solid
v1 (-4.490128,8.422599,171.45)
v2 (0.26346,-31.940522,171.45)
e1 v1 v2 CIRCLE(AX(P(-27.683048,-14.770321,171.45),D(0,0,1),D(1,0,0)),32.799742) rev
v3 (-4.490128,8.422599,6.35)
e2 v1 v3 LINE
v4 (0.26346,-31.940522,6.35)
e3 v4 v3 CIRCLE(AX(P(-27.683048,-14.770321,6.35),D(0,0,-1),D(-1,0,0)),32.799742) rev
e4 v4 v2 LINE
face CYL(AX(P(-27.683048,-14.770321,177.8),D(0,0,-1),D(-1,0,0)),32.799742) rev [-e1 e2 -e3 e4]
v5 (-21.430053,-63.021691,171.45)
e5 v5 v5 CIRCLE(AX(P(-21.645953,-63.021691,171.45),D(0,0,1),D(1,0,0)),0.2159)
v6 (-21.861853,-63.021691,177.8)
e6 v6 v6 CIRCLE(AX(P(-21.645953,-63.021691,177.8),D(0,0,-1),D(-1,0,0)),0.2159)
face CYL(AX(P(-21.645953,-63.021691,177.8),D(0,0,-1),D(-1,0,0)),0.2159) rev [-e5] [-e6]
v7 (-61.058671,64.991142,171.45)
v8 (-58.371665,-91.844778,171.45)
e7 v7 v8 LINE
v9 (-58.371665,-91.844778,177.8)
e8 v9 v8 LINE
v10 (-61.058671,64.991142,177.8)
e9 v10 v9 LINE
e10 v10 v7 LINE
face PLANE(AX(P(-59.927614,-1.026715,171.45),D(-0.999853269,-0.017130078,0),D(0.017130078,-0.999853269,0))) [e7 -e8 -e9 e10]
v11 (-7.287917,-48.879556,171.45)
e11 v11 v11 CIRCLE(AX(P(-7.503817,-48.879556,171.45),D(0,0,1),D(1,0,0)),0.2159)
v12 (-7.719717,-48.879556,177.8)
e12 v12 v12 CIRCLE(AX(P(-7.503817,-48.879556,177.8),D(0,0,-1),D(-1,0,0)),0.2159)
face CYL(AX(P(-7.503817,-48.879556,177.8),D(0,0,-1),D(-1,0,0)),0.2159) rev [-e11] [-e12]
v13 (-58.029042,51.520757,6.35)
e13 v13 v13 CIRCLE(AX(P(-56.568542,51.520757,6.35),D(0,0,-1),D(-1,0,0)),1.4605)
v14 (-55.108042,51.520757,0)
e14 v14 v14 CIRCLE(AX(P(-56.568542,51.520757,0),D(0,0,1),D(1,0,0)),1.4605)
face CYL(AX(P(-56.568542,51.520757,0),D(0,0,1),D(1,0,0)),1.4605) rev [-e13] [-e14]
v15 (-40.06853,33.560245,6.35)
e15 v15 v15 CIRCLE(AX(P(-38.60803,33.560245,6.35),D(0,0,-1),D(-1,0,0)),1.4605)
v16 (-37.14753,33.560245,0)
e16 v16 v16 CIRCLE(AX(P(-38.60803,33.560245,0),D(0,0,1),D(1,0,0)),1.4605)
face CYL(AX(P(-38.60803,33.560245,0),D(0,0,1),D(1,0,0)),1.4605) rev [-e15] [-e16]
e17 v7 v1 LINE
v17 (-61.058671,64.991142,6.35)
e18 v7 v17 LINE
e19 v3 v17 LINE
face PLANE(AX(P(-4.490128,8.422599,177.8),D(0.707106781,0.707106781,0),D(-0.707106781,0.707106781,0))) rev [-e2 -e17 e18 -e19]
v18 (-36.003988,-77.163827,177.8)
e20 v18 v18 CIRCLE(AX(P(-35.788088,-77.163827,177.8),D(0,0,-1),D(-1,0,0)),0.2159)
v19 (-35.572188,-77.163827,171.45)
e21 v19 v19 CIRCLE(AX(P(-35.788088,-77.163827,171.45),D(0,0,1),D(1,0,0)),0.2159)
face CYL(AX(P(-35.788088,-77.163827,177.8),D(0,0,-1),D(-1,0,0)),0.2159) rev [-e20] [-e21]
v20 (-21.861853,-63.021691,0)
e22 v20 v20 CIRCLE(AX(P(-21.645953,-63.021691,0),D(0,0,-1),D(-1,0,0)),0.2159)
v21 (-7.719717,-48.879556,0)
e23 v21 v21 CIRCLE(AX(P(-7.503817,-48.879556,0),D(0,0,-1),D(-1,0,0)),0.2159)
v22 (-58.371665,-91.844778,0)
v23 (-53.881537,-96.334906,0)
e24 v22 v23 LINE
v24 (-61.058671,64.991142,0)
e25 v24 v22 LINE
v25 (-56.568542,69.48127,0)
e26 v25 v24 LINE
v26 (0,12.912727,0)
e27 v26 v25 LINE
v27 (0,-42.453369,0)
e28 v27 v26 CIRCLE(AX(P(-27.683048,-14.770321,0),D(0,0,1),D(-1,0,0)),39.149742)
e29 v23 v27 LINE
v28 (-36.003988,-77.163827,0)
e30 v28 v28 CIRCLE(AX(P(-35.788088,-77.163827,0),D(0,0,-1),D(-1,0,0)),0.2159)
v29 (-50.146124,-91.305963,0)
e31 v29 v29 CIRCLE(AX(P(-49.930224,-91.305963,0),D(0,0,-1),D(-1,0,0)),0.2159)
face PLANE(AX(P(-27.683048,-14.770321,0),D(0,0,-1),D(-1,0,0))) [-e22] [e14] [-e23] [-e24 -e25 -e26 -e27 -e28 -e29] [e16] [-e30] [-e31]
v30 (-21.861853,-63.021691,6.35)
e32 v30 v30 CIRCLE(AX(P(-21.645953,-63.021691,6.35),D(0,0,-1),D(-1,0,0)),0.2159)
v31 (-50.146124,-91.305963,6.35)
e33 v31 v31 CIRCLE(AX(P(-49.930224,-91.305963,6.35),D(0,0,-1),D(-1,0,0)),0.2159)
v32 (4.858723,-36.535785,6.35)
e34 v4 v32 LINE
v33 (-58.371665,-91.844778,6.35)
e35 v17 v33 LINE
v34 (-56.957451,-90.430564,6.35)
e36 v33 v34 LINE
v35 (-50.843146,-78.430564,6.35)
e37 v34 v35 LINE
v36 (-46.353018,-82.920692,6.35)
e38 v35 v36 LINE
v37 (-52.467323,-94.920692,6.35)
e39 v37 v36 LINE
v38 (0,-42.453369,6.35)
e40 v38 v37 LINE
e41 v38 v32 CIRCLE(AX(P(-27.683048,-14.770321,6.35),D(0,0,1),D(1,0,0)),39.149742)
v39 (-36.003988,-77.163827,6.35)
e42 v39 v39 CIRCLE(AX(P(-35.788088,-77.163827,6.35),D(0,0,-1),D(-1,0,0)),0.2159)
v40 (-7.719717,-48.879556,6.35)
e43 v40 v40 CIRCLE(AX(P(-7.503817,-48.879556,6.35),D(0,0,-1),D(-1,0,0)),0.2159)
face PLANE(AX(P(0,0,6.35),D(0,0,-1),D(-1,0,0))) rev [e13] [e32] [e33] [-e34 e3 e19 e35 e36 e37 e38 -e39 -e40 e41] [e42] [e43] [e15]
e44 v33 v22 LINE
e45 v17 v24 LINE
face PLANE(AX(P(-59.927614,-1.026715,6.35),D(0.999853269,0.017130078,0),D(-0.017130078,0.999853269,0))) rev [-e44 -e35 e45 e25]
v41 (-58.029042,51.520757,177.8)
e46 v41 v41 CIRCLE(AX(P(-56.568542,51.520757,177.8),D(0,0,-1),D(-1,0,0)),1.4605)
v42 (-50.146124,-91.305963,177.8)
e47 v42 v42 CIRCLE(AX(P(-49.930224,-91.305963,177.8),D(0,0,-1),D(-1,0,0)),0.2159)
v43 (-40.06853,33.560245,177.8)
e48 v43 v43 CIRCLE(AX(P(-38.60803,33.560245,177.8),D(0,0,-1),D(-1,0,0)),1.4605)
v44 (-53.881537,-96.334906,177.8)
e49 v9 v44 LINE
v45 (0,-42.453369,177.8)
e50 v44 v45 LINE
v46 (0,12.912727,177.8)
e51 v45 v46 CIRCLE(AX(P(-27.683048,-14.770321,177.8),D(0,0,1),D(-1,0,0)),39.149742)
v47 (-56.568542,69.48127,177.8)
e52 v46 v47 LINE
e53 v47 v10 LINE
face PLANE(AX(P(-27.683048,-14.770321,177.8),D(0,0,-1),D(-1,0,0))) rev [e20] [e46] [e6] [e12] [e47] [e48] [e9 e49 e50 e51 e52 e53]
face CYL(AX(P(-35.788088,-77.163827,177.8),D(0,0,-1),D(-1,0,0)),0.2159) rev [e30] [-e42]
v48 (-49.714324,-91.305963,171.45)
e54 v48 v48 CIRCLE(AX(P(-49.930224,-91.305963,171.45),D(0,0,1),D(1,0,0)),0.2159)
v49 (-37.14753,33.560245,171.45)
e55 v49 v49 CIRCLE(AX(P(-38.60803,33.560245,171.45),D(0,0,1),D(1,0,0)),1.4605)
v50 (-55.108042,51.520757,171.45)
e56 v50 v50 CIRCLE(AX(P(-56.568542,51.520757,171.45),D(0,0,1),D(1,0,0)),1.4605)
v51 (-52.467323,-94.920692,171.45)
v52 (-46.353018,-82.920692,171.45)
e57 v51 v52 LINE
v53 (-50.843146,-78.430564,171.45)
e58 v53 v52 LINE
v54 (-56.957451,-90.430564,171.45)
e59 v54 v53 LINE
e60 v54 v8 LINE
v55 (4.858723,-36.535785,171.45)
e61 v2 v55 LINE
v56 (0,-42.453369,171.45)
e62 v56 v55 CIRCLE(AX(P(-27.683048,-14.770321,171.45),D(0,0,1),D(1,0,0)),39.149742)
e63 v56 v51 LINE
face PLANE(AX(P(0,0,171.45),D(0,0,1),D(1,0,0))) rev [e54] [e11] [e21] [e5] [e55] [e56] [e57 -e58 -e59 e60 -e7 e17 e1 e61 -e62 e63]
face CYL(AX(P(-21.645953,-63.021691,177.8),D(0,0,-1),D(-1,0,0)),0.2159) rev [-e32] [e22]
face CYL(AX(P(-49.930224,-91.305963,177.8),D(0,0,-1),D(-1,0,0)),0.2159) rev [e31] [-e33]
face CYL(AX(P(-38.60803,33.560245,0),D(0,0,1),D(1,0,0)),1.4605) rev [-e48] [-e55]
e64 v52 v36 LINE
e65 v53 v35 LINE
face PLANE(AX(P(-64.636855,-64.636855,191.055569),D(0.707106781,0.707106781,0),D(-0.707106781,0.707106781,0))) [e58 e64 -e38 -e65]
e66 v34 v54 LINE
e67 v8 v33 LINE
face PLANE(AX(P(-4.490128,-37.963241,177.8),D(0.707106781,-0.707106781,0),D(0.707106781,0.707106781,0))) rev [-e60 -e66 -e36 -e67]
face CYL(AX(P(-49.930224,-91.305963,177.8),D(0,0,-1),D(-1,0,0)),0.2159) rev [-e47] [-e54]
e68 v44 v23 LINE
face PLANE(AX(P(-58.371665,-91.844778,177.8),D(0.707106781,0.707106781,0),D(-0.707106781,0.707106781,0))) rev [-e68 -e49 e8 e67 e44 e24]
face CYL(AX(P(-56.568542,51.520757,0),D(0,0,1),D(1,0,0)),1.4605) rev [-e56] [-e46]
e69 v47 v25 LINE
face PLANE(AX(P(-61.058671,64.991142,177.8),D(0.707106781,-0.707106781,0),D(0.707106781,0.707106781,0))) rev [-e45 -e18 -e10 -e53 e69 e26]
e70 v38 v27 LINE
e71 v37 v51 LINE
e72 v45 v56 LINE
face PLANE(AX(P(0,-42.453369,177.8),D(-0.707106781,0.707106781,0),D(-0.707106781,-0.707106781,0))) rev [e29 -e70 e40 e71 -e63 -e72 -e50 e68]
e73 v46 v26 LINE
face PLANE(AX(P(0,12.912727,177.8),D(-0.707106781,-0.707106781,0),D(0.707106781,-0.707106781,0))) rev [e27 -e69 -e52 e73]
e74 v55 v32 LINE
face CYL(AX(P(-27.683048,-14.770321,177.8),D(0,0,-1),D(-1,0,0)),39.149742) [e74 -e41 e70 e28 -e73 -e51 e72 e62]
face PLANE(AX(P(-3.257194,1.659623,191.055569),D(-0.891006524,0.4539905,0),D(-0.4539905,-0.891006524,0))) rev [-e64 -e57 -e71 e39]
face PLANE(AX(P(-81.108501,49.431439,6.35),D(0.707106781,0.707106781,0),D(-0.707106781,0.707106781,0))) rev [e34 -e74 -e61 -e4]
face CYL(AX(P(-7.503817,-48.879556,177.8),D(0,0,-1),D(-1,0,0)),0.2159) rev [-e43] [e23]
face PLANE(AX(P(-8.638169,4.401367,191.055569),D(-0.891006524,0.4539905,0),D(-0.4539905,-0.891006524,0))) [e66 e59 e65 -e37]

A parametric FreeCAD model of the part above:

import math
import FreeCAD as App
import Part
import Sketcher
from FreeCAD import Vector
Q = App.Units.Quantity

doc = App.newDocument("Part")
body = doc.addObject("PartDesign::Body", "Body")

# Sketch on XY plane
sketch1 = doc.addObject("Sketcher::SketchObject", "Sketch")
body.addObject(sketch1)
sketch1.AttachmentSupport = (doc.XY_Plane, [""])
sketch1.MapMode = "FlatFace"
sketch1.addGeometry([
    Part.LineSegment(Vector(0, 13, 0), Vector(-57, 69, 0)),  # 0
    Part.LineSegment(Vector(-57, 69, 0), Vector(-61, 65, 0)),  # 1
    Part.LineSegment(Vector(-61, 65, 0), Vector(-4, 8, 0)),  # 2
    Part.ArcOfCircle(Part.Circle(Vector(-28, -15, 0), Vector(0, 0, 1), 33), math.radians(-45), math.radians(45)),  # 3
    Part.LineSegment(Vector(-4, -38, 0), Vector(-58, -92, 0)),  # 4
    Part.LineSegment(Vector(-58, -92, 0), Vector(-54, -96, 0)),  # 5
    Part.LineSegment(Vector(-54, -96, 0), Vector(0, -42, 0)),  # 6
    Part.ArcOfCircle(Part.Circle(Vector(-28, -15, 0), Vector(0, 0, 1), 39), math.radians(-45), math.radians(45)),  # 7
], False)
sketch1.addConstraint([
    Sketcher.Constraint("Coincident", 0, 2, 1, 1),
    Sketcher.Constraint("Coincident", 1, 2, 2, 1),
    Sketcher.Constraint("Tangent", 2, 2, 3, 2),
    Sketcher.Constraint("Tangent", 3, 1, 4, 1),
    Sketcher.Constraint("Coincident", 4, 2, 5, 1),
    Sketcher.Constraint("Coincident", 5, 2, 6, 1),
    Sketcher.Constraint("Tangent", 6, 2, 7, 1),
    Sketcher.Constraint("Tangent", 7, 2, 0, 1),
    Sketcher.Constraint("Coincident", 7, 3, 3, 3),
    Sketcher.Constraint("PointOnObject", 6, 2, -2),
    Sketcher.Constraint("PointOnObject", 7, 2, -2),
    Sketcher.Constraint("Perpendicular", 0, 1),
    Sketcher.Constraint("Perpendicular", 1, 2),
    Sketcher.Constraint("Perpendicular", 2, 4),
    Sketcher.Constraint("Perpendicular", 4, 5),
    Sketcher.Constraint("Perpendicular", 5, 6),
    Sketcher.Constraint("Distance", 4, Q("3 in")),
    Sketcher.Constraint("Distance", 1, Q("0.25 in")),
    Sketcher.Constraint("Radius", 3, Q("32.799742 mm")),
    Sketcher.Constraint("Distance", 0, Q("80 mm")),
    Sketcher.Constraint("DistanceY", -1, 1, 2, 2, Q("8.422599 mm")),
])
pad1 = doc.addObject("PartDesign::Pad", "Pad")
body.addObject(pad1)
pad1.Profile = sketch1
pad1.Length = Q("7 in")

# Sketch on XY plane
sketch2 = doc.addObject("Sketcher::SketchObject", "Sketch001")
body.addObject(sketch2)
sketch2.AttachmentSupport = (doc.XY_Plane, [""])
sketch2.MapMode = "FlatFace"
sketch2.addGeometry([
    Part.LineSegment(Vector(-58, -92, 0), Vector(-61, 65, 0)),
    Part.LineSegment(Vector(-61, 65, 0), Vector(-4, 8, 0)),
    Part.ArcOfCircle(Part.Circle(Vector(-28, -15, 0), Vector(0, 0, 1), 33), math.radians(-45), math.radians(45)),
    Part.LineSegment(Vector(-4, -38, 0), Vector(-58, -92, 0)),
], False)
sketch2.addConstraint([
    Sketcher.Constraint("Coincident", 0, 2, 1, 1),
    Sketcher.Constraint("Tangent", 1, 2, 2, 2),
    Sketcher.Constraint("Tangent", 2, 1, 3, 1),
    Sketcher.Constraint("Coincident", 3, 2, 0, 1),
    Sketcher.Constraint("Perpendicular", 1, 3),
    Sketcher.Constraint("Vertical", 1, 2, 2, 1),
    Sketcher.Constraint("Distance", 3, Q("3 in")),
    Sketcher.Constraint("Radius", 2, Q("32.799742 mm")),
    Sketcher.Constraint("Distance", 1, Q("80 mm")),
    Sketcher.Constraint("DistanceY", -1, 1, 1, 2, Q("8.422599 mm")),
    Sketcher.Constraint("DistanceX", 2, 3, -1, 1, Q("27.683048 mm")),
])
pad2 = doc.addObject("PartDesign::Pad", "Pad001")
body.addObject(pad2)
pad2.Profile = sketch2
pad2.Length = Q("0.25 in")

# Sketch on XY plane
sketch3 = doc.addObject("Sketcher::SketchObject", "Sketch002")
body.addObject(sketch3)
sketch3.AttachmentSupport = (doc.XY_Plane, [""])
sketch3.MapMode = "FlatFace"
sketch3.AttachmentOffset = App.Placement(Vector(0, 0, 6.75 * 25.4), App.Rotation())
sketch3.addGeometry([
    Part.LineSegment(Vector(-61, 65, 0), Vector(-58, -92, 0)),
    Part.LineSegment(Vector(-58, -92, 0), Vector(-4, -38, 0)),
    Part.ArcOfCircle(Part.Circle(Vector(-28, -15, 0), Vector(0, 0, 1), 33), math.radians(-45), math.radians(45)),
    Part.LineSegment(Vector(-4, 8, 0), Vector(-61, 65, 0)),
], False)
sketch3.addConstraint([
    Sketcher.Constraint("Coincident", 0, 2, 1, 1),
    Sketcher.Constraint("Tangent", 1, 2, 2, 1),
    Sketcher.Constraint("Tangent", 2, 2, 3, 1),
    Sketcher.Constraint("Coincident", 3, 2, 0, 1),
    Sketcher.Constraint("Perpendicular", 1, 3),
    Sketcher.Constraint("Vertical", 1, 2, 2, 2),
    Sketcher.Constraint("Distance", 1, Q("3 in")),
    Sketcher.Constraint("Radius", 2, Q("32.799742 mm")),
    Sketcher.Constraint("Distance", 3, Q("80 mm")),
    Sketcher.Constraint("DistanceY", -1, 1, 2, 2, Q("8.422599 mm")),
    Sketcher.Constraint("DistanceX", 2, 3, -1, 1, Q("27.683048 mm")),
])
pad3 = doc.addObject("PartDesign::Pad", "Pad002")
body.addObject(pad3)
pad3.Profile = sketch3
pad3.Length = Q("0.25 in")

# Sketch on an angled plane
sketch4 = doc.addObject("Sketcher::SketchObject", "Sketch003")
body.addObject(sketch4)
sketch4.Placement = App.Placement(Vector(21.226685, -21.226685, 0), App.Rotation(Vector(0.707106781, 0.707106781, 0), Vector(0, 0, 0.999999999), Vector(0.707106781, -0.707106781, 0), "ZXY"))
sketch4.addGeometry([
    Part.LineSegment(Vector(-104, 171, 0), Vector(-104, 6, 0)),
    Part.LineSegment(Vector(-104, 6, 0), Vector(-22, 6, 0)),
    Part.LineSegment(Vector(-22, 6, 0), Vector(-22, 171, 0)),
    Part.LineSegment(Vector(-22, 171, 0), Vector(-104, 171, 0)),
], False)
sketch4.addConstraint([
    Sketcher.Constraint("Coincident", 0, 2, 1, 1),
    Sketcher.Constraint("Coincident", 1, 2, 2, 1),
    Sketcher.Constraint("Coincident", 2, 2, 3, 1),
    Sketcher.Constraint("Coincident", 3, 2, 0, 1),
    Sketcher.Constraint("Vertical", 0),
    Sketcher.Constraint("Horizontal", 1),
    Sketcher.Constraint("Vertical", 2),
    Sketcher.Constraint("Horizontal", 3),
    Sketcher.Constraint("DistanceY", 0, 2, 0, 1, Q("6.5 in")),
    Sketcher.Constraint("DistanceY", -1, 1, 0, 2, Q("0.25 in")),
    Sketcher.Constraint("DistanceX", 1, 1, 1, 2, Q("81.82 mm")),
    Sketcher.Constraint("DistanceX", 0, 2, -1, 1, Q("104.219065 mm")),
])
pocket1 = doc.addObject("PartDesign::Pocket", "Pocket")
body.addObject(pocket1)
pocket1.Profile = sketch4
pocket1.Type = "ThroughAll"

# Sketch on XY plane
sketch5 = doc.addObject("Sketcher::SketchObject", "Sketch004")
body.addObject(sketch5)
sketch5.AttachmentSupport = (doc.XY_Plane, [""])
sketch5.MapMode = "FlatFace"
sketch5.AttachmentOffset = App.Placement(Vector(0, 0, 0.25 * 25.4), App.Rotation())
sketch5.addGeometry([
    Part.LineSegment(Vector(-46, -83, 0), Vector(-51, -78, 0)),
    Part.LineSegment(Vector(-51, -78, 0), Vector(-57, -90, 0)),
    Part.LineSegment(Vector(-57, -90, 0), Vector(-52, -95, 0)),
    Part.LineSegment(Vector(-52, -95, 0), Vector(-46, -83, 0)),
], False)
sketch5.addConstraint([
    Sketcher.Constraint("Coincident", 0, 2, 1, 1),
    Sketcher.Constraint("Coincident", 1, 2, 2, 1),
    Sketcher.Constraint("Coincident", 2, 2, 3, 1),
    Sketcher.Constraint("Coincident", 3, 2, 0, 1),
    Sketcher.Constraint("Parallel", 0, 2),
    Sketcher.Constraint("Parallel", 1, 3),
    Sketcher.Constraint("Angle", 0, Q("135 deg")),
    Sketcher.Constraint("Angle", 1, Q("-117 deg")),
    Sketcher.Constraint("Distance", 0, Q("0.25 in")),
    Sketcher.Constraint("DistanceY", 1, 2, 0, 2, Q("12 mm")),
    Sketcher.Constraint("DistanceX", 1, 2, -1, 1, Q("56.957451 mm")),
    Sketcher.Constraint("DistanceY", 0, 2, -1, 1, Q("78.430564 mm")),
])
pad4 = doc.addObject("PartDesign::Pad", "Pad003")
body.addObject(pad4)
pad4.Profile = sketch5
pad4.Length = Q("6.5 in")

# Sketch on XY plane
sketch6 = doc.addObject("Sketcher::SketchObject", "Sketch005")
body.addObject(sketch6)
sketch6.AttachmentSupport = (doc.XY_Plane, [""])
sketch6.MapMode = "FlatFace"
sketch6.AttachmentOffset = App.Placement(Vector(0, 0, 7 * 25.4), App.Rotation())
sketch6.addGeometry([
    Part.Circle(Vector(-56.6, 51.5, 0), Vector(0, 0, 1), 1.5),
    Part.Circle(Vector(-38.6, 33.6, 0), Vector(0, 0, 1), 1.5),
], False)
sketch6.addConstraint([
    Sketcher.Constraint("Equal", 0, 1),
    Sketcher.Constraint("Diameter", 0, Q("0.115 in")),
    Sketcher.Constraint("DistanceX", 1, 3, -1, 1, Q("38.60803 mm")),
    Sketcher.Constraint("DistanceX", 0, 3, -1, 1, Q("56.568542 mm")),
    Sketcher.Constraint("DistanceY", -1, 1, 0, 3, Q("51.520757 mm")),
    Sketcher.Constraint("DistanceY", -1, 1, 1, 3, Q("33.560245 mm")),
])
pocket2 = doc.addObject("PartDesign::Pocket", "Pocket001")
body.addObject(pocket2)
pocket2.Profile = sketch6
pocket2.Type = "ThroughAll"
pocket2.Midplane = True

# Sketch on XY plane
sketch7 = doc.addObject("Sketcher::SketchObject", "Sketch006")
body.addObject(sketch7)
sketch7.AttachmentSupport = (doc.XY_Plane, [""])
sketch7.MapMode = "FlatFace"
sketch7.addGeometry([
    Part.Circle(Vector(-49.93, -91.31, 0), Vector(0, 0, 1), 0.22),  # 0
    Part.Circle(Vector(-35.79, -77.16, 0), Vector(0, 0, 1), 0.22),  # 1
    Part.Circle(Vector(-21.65, -63.02, 0), Vector(0, 0, 1), 0.22),  # 2
    Part.Circle(Vector(-7.5, -48.88, 0), Vector(0, 0, 1), 0.22),  # 3
    Part.Circle(Vector(6.64, -34.74, 0), Vector(0, 0, 1), 0.22),  # 4
], False)
sketch7.addConstraint([
    Sketcher.Constraint("Equal", 0, 1),
    Sketcher.Constraint("Equal", 1, 2),
    Sketcher.Constraint("Equal", 2, 3),
    Sketcher.Constraint("Equal", 3, 4),
    Sketcher.Constraint("Diameter", 0, Q("0.017 in")),
    Sketcher.Constraint("DistanceX", 1, 3, -1, 1, Q("35.788088 mm")),
    Sketcher.Constraint("DistanceY", 2, 3, -1, 1, Q("63.021691 mm")),
    Sketcher.Constraint("DistanceX", -1, 1, 4, 3, Q("6.638318 mm")),
    Sketcher.Constraint("DistanceY", 4, 3, -1, 1, Q("34.73742 mm")),
    Sketcher.Constraint("DistanceX", 0, 3, 2, 3, Q("28.284271 mm")),
    Sketcher.Constraint("DistanceY", 0, 3, 2, 3, Q("28.284271 mm")),
    Sketcher.Constraint("DistanceX", 1, 3, 3, 3, Q("28.284271 mm")),
    Sketcher.Constraint("DistanceY", 1, 3, 3, 3, Q("28.284271 mm")),
    Sketcher.Constraint("DistanceX", 2, 3, 4, 3, Q("28.284271 mm")),
    Sketcher.Constraint("DistanceY", 1, 3, -1, 1, Q("77.163827 mm")),
])
pocket3 = doc.addObject("PartDesign::Pocket", "Pocket002")
body.addObject(pocket3)
pocket3.Profile = sketch7
pocket3.Type = "ThroughAll"
pocket3.Reversed = True

doc.recompute()
